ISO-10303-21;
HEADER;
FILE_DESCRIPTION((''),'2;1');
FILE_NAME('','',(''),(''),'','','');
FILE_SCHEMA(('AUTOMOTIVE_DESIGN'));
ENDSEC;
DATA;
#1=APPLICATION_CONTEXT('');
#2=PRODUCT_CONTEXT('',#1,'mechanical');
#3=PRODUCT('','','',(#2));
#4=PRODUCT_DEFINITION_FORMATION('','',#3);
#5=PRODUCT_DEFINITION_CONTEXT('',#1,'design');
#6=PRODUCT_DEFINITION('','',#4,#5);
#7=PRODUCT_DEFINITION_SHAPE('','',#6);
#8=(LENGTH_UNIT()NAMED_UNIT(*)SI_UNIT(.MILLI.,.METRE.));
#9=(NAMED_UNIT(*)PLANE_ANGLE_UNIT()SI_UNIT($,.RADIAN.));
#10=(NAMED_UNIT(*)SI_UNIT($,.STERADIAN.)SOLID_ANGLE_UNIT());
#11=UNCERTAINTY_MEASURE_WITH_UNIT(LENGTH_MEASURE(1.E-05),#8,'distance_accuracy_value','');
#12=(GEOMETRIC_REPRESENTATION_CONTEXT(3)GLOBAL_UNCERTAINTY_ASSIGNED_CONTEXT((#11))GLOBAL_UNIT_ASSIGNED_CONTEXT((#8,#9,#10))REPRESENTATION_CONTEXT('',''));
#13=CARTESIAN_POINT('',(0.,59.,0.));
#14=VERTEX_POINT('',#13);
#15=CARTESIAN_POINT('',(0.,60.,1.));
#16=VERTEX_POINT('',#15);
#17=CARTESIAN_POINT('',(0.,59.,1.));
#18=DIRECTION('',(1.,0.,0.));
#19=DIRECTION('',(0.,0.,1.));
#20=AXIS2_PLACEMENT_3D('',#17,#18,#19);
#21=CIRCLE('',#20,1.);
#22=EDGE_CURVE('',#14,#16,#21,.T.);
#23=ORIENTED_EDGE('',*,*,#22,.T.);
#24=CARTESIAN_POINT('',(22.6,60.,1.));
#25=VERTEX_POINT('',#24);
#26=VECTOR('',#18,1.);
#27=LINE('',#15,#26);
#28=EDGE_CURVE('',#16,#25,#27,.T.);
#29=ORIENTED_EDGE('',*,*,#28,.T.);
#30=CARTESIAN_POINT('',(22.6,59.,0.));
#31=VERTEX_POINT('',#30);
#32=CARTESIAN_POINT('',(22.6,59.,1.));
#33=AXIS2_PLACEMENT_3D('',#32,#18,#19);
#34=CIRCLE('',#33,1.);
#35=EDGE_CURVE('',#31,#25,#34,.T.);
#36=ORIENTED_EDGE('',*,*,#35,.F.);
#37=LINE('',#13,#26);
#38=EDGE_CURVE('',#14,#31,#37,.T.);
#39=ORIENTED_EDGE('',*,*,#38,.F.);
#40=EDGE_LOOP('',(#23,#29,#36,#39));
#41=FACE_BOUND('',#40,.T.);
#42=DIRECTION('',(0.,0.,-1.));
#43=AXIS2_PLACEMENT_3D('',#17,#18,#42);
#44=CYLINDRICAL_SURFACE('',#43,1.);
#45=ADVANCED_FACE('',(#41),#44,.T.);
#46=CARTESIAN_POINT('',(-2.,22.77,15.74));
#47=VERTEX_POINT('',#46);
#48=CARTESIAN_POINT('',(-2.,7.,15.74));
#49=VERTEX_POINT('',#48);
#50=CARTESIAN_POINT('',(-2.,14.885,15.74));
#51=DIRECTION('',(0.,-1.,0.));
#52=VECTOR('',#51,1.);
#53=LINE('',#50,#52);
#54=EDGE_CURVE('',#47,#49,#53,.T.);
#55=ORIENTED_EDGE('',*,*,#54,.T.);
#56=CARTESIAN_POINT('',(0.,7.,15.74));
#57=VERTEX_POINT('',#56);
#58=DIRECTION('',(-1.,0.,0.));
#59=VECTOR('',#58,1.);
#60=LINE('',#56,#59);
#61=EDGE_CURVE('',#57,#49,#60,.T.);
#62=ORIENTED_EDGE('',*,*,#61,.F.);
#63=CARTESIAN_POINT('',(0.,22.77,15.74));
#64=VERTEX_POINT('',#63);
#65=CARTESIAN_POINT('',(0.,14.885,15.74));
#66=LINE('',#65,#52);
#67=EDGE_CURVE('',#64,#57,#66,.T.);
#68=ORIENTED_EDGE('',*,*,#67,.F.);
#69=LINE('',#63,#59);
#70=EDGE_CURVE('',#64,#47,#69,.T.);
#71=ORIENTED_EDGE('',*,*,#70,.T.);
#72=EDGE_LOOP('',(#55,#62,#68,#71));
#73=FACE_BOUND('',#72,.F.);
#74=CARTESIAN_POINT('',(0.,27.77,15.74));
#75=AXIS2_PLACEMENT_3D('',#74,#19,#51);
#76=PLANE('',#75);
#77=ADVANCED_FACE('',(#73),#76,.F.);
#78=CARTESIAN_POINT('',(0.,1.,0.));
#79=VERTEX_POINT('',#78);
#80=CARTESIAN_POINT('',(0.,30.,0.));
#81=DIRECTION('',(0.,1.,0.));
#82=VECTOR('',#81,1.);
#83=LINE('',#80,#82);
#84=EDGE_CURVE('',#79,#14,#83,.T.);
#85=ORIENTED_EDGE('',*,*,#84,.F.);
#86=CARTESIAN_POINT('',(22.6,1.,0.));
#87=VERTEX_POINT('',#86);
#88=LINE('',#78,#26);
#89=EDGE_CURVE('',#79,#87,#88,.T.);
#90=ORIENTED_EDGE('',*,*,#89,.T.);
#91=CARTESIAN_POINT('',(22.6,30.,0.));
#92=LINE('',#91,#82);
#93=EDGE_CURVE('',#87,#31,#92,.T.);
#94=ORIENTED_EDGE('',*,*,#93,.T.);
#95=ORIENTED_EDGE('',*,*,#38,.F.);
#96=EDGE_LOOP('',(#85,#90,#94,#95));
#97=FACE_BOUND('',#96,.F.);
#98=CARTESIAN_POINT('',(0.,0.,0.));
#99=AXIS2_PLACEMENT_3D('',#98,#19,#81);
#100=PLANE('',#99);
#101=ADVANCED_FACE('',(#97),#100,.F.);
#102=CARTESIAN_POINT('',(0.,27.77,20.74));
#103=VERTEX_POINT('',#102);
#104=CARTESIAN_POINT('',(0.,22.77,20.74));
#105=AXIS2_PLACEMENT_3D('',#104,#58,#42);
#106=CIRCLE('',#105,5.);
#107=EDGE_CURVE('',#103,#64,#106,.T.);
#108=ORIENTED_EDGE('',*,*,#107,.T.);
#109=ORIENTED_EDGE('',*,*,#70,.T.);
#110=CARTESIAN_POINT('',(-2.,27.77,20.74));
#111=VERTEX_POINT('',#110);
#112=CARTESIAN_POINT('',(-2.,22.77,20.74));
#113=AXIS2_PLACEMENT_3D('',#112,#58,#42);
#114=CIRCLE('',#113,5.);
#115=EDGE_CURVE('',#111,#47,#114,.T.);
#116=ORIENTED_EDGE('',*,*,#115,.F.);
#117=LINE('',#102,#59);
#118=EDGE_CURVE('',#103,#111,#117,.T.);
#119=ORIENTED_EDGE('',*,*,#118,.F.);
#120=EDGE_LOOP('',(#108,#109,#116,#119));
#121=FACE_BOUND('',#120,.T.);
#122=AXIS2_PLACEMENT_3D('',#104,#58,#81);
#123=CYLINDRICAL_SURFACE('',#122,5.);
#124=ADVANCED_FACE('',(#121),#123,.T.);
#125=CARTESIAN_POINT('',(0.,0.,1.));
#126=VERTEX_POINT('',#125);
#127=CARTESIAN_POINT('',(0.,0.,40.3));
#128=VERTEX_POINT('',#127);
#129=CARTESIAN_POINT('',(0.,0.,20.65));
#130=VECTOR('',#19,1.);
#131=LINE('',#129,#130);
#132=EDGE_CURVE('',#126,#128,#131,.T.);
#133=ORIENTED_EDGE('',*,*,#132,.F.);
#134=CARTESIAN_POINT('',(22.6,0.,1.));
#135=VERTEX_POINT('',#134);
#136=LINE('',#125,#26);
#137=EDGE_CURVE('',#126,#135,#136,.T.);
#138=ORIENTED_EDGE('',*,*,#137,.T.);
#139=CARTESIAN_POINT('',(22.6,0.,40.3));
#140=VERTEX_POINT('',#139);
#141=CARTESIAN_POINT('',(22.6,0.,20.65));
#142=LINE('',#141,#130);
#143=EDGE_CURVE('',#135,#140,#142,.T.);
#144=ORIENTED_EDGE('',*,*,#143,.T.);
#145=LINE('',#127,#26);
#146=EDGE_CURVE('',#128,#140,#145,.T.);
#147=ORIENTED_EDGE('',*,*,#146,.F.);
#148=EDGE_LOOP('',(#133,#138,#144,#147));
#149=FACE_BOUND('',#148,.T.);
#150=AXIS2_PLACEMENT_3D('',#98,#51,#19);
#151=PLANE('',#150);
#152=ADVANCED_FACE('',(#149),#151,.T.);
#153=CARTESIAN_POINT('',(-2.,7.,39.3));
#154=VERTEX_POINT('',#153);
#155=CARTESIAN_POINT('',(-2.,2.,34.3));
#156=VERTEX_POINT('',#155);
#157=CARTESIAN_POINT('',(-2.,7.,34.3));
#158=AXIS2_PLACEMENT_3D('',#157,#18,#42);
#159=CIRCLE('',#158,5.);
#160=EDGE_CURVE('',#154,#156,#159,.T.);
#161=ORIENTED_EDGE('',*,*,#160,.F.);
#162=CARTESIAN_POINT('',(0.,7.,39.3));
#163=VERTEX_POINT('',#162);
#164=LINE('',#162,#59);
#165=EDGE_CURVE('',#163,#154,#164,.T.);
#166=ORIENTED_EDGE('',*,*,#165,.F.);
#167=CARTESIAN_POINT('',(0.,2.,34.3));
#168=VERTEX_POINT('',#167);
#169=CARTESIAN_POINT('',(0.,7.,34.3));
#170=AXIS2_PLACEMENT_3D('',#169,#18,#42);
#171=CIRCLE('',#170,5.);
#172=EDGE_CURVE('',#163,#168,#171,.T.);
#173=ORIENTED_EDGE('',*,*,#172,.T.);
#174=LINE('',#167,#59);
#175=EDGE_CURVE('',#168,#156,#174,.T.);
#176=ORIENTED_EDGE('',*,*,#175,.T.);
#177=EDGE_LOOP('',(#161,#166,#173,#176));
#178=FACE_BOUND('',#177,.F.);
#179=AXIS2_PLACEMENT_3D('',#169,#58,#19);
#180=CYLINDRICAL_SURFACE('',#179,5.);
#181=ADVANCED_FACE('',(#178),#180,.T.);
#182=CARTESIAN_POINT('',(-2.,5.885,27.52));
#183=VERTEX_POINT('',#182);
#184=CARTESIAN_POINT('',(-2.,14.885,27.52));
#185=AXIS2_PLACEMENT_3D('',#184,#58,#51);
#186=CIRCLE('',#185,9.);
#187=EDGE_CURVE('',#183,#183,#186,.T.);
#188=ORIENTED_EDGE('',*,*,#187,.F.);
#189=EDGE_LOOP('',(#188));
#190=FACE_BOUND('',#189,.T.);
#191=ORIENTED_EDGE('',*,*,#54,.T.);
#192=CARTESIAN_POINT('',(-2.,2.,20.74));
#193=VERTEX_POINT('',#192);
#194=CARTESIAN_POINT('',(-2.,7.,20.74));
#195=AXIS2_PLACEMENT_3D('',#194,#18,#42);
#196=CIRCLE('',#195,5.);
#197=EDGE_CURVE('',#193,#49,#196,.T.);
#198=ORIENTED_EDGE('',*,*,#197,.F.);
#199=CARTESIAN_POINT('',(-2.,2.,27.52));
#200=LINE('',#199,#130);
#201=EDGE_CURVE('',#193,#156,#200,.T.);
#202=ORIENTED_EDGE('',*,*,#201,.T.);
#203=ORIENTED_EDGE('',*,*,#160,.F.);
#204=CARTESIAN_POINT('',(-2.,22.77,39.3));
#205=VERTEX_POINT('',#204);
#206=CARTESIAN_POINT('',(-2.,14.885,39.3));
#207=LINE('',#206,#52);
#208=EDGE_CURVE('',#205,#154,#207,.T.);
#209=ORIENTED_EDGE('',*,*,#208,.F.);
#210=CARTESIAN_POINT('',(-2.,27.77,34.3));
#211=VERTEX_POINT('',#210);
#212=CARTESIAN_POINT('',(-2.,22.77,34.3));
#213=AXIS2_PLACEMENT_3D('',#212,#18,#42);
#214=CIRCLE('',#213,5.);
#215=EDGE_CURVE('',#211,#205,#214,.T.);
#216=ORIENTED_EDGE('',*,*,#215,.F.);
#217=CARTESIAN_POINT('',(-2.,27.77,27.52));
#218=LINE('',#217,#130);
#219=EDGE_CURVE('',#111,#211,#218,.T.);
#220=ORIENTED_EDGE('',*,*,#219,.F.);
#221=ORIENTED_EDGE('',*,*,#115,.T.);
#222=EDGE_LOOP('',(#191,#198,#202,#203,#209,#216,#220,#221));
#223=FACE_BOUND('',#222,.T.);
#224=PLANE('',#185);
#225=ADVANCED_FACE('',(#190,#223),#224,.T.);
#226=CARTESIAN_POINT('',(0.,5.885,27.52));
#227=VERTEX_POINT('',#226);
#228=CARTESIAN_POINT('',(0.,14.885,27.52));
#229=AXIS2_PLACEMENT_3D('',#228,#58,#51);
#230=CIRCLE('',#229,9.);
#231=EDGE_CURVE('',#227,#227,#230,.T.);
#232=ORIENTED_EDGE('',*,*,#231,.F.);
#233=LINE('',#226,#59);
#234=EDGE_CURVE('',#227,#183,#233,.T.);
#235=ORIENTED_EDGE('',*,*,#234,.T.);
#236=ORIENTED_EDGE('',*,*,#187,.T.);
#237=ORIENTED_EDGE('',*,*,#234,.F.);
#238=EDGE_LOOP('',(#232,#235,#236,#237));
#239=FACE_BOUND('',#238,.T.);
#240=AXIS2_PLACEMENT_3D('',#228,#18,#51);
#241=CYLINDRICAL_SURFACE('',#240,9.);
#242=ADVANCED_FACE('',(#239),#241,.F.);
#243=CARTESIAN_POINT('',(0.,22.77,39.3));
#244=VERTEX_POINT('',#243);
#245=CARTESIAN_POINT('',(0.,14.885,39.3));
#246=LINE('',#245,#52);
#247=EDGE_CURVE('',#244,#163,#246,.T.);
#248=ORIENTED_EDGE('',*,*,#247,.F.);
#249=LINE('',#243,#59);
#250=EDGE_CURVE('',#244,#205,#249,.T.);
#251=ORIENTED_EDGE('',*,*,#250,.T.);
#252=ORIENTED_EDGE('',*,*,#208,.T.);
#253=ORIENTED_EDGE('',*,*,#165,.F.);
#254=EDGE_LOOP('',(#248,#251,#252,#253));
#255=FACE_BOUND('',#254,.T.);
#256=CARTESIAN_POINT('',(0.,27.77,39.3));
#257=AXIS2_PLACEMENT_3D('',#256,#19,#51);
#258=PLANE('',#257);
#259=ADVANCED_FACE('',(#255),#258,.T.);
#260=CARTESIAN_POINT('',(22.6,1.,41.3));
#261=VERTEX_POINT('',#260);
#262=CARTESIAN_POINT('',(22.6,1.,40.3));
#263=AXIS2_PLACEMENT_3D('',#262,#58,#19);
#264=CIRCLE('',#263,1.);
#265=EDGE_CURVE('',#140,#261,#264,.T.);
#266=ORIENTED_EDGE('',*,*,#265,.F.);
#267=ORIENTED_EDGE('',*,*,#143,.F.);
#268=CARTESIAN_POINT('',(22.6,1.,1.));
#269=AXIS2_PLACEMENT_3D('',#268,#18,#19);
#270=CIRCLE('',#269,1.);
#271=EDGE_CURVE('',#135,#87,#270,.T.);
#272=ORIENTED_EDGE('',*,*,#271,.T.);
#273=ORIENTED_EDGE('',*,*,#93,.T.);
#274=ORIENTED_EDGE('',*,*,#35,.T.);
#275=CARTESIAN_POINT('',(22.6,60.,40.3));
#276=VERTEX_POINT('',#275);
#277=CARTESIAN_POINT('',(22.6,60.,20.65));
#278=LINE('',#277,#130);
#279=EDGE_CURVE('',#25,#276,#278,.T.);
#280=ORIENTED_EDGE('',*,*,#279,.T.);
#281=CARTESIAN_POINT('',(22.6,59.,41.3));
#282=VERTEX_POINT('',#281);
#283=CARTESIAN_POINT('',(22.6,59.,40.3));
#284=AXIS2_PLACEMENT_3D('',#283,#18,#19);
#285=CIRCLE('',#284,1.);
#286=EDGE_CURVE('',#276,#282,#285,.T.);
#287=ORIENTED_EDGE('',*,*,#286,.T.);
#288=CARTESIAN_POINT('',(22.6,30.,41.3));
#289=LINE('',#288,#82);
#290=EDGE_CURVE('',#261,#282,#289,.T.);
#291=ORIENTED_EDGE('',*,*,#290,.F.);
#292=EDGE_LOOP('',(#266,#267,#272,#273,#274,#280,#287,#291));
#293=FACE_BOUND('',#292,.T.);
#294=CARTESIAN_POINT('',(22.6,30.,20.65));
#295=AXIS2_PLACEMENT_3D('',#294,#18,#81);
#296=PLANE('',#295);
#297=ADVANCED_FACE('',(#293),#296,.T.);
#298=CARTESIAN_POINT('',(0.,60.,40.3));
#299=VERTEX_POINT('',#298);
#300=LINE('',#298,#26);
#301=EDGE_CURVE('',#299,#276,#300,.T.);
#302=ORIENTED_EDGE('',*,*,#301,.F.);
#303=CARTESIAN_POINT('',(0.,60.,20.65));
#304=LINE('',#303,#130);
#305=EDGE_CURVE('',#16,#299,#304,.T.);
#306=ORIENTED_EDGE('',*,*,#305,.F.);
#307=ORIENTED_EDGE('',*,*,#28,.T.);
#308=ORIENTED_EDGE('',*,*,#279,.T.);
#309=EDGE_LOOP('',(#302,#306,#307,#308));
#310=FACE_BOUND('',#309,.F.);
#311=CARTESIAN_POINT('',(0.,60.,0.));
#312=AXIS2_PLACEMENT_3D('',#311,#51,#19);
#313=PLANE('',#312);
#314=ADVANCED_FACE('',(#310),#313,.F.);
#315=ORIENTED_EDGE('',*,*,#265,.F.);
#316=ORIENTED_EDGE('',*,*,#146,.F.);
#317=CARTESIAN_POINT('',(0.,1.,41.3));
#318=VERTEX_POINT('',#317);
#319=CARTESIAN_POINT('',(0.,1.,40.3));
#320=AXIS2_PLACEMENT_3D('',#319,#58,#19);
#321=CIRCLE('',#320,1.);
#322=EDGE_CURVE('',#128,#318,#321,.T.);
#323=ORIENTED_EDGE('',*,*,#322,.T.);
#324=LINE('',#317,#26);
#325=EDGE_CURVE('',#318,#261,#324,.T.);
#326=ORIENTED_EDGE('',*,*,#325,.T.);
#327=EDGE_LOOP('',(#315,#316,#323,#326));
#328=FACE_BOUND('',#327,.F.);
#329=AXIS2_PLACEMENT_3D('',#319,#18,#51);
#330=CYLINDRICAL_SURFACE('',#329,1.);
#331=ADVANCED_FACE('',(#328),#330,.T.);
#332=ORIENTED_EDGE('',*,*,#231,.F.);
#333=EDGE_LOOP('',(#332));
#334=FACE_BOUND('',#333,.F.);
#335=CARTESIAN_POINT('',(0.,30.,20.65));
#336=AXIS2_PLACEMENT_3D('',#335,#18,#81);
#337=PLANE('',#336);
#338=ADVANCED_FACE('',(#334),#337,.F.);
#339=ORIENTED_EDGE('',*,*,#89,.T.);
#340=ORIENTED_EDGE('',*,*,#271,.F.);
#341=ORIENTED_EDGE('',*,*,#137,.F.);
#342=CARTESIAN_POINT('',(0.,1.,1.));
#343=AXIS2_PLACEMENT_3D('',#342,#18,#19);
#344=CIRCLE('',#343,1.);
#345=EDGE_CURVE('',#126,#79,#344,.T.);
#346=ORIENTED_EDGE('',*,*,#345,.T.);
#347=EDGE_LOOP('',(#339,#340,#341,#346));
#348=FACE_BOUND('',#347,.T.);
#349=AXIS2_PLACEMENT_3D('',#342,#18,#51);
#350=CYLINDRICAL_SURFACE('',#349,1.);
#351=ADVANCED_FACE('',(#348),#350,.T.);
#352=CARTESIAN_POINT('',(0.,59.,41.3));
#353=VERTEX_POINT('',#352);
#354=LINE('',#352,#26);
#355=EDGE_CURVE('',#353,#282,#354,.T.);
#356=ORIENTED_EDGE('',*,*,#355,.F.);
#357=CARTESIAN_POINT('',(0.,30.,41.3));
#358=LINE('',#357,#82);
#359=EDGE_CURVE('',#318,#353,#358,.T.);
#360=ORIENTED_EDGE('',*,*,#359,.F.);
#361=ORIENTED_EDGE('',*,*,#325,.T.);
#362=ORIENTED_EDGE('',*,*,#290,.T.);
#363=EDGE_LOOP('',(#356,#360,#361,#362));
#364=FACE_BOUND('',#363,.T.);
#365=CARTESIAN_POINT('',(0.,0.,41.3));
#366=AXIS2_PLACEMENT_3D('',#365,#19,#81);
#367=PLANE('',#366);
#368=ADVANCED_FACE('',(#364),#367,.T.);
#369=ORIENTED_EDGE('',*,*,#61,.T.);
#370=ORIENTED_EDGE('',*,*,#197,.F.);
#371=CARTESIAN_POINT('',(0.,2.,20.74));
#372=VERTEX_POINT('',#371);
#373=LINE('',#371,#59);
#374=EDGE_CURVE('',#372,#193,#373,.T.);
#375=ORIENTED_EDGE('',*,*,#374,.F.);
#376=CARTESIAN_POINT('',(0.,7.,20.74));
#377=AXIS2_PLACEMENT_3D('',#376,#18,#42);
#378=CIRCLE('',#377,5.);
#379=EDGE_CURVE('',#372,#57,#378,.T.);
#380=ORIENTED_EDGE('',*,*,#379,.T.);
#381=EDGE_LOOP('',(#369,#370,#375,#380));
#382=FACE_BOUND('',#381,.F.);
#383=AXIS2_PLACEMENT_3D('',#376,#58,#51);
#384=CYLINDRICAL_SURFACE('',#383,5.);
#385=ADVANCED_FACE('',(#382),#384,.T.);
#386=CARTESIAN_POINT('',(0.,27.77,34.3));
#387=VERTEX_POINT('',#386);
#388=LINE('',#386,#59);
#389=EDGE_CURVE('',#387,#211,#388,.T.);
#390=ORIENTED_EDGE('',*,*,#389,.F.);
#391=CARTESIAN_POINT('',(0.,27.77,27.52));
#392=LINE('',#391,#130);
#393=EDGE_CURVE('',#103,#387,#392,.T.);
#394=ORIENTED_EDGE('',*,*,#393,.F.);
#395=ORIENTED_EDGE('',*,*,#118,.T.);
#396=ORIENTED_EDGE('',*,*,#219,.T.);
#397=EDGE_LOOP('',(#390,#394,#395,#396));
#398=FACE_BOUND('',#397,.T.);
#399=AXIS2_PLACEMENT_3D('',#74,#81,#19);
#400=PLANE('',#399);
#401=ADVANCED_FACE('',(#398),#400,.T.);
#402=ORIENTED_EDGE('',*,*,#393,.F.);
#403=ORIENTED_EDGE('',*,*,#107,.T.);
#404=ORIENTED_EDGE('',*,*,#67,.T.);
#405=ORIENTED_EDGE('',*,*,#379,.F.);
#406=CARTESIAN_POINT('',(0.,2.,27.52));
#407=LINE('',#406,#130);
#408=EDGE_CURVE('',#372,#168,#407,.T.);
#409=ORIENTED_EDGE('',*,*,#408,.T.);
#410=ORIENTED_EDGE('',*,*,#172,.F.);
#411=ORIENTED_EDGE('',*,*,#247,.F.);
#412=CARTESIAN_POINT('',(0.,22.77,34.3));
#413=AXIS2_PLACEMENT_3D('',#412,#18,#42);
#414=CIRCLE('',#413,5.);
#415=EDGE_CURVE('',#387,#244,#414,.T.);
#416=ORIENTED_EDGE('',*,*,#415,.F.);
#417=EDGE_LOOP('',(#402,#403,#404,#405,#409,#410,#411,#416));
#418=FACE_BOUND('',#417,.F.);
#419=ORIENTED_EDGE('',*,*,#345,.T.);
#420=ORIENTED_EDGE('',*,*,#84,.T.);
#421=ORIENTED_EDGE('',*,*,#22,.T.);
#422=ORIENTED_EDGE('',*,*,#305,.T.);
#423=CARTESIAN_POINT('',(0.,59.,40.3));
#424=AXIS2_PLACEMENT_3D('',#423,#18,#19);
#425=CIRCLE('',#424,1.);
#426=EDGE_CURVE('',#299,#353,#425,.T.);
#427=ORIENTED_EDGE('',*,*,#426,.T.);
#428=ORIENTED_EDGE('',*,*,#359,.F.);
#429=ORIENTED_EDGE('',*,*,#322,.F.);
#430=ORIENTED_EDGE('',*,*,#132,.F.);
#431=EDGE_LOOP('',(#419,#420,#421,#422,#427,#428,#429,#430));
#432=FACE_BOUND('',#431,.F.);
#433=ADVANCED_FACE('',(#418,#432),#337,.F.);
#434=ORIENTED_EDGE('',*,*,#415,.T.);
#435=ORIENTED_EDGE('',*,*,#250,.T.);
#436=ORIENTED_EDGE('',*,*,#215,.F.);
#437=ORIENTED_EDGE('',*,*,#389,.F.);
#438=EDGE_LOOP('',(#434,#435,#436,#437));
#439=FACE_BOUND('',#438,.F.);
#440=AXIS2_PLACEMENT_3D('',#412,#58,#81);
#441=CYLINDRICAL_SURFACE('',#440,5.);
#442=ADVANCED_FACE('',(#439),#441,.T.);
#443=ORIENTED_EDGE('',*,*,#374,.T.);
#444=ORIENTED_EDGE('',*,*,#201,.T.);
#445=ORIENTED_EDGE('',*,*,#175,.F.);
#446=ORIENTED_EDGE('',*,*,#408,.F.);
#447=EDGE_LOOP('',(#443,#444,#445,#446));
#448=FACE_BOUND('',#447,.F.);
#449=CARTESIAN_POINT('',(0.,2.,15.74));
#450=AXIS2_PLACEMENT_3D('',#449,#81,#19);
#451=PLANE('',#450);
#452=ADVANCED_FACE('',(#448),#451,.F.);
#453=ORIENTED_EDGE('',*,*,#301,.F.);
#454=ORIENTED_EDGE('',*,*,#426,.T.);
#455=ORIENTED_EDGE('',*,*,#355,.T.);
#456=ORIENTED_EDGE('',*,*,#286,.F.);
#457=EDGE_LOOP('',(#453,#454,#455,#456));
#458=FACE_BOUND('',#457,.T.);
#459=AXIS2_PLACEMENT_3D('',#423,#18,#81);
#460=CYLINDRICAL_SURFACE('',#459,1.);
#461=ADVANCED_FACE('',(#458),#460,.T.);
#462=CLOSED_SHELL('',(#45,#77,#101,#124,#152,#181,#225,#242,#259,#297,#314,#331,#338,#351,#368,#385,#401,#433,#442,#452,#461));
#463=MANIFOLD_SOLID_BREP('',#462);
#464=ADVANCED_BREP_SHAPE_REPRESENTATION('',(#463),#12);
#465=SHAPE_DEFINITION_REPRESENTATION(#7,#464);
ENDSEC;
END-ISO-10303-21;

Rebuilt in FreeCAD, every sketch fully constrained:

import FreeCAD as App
import Part
import Sketcher
Q = App.Units.Quantity


def edges_at(feature, points):
    """Names of the edges that pass closest to the given points."""
    edges = feature.Shape.Edges
    near = lambda p: min(range(len(edges)), key=lambda i: edges[i].distToShape(Part.Vertex(*p))[0])
    return sorted({f"Edge{near(p) + 1}" for p in points})


def add_polygon(sketch, points):
    """Adds a closed chain of lines whose ends are joined by coincident constraints."""
    first, n = sketch.GeometryCount, len(points)
    for a, b in zip(points, points[1:] + points[:1]):
        sketch.addGeometry(Part.LineSegment(App.Vector(*a, 0), App.Vector(*b, 0)), False)
    for i in range(n):
        sketch.addConstraint(Sketcher.Constraint("Coincident", first + i, 2, first + (i + 1) % n, 1))

doc = App.newDocument("Part")
body = doc.addObject("PartDesign::Body", "Body")

sketch1 = body.newObject("Sketcher::SketchObject", "Sketch")
sketch1.AttachmentSupport = (doc.getObject("YZ_Plane"), [""])
sketch1.MapMode = "FlatFace"
add_polygon(sketch1, [(0, 41.3), (0, 0), (60, 0), (60, 41.3)])
sketch1.addConstraint(Sketcher.Constraint("Vertical", 0))
sketch1.addConstraint(Sketcher.Constraint("Horizontal", 1))
sketch1.addConstraint(Sketcher.Constraint("Vertical", 2))
sketch1.addConstraint(Sketcher.Constraint("Horizontal", 3))
sketch1.addConstraint(Sketcher.Constraint("Coincident", 0, 2, -1, 1))
sketch1.addConstraint(Sketcher.Constraint("DistanceX", 1, 1, 1, 2, Q("60 mm")))
sketch1.addConstraint(Sketcher.Constraint("DistanceY", 0, 2, 0, 1, Q("41.3 mm")))
pad1 = body.newObject("PartDesign::Pad", "Pad")
pad1.Profile = sketch1
pad1.Length = 22.6
doc.recompute()

fillet = body.newObject("PartDesign::Fillet", "Fillet")
fillet.Base = (pad1, edges_at(pad1, [
    (11.3, 60, 41.3),
    (11.3, 0, 41.3),
    (11.3, 0, 0),
    (11.3, 60, 0),
]))
fillet.Radius = 1

sketch2 = body.newObject("Sketcher::SketchObject", "Sketch001")
sketch2.AttachmentSupport = (doc.getObject("YZ_Plane"), [""])
sketch2.MapMode = "FlatFace"
add_polygon(sketch2, [(27.77, 39.3), (27.77, 15.74), (2, 15.74), (2, 39.3)])
sketch2.addGeometry(Part.Circle(App.Vector(14.885, 27.52, 0), App.Vector(0, 0, 1), 9), False)
sketch2.addConstraint(Sketcher.Constraint("Vertical", 0))
sketch2.addConstraint(Sketcher.Constraint("Horizontal", 1))
sketch2.addConstraint(Sketcher.Constraint("Vertical", 2))
sketch2.addConstraint(Sketcher.Constraint("Horizontal", 3))
sketch2.addConstraint(Sketcher.Constraint("Diameter", 4, Q("18 mm")))
sketch2.addConstraint(Sketcher.Constraint("DistanceX", -1, 1, 1, 2, Q("2 mm")))
sketch2.addConstraint(Sketcher.Constraint("DistanceX", 1, 2, 1, 1, Q("25.77 mm")))
sketch2.addConstraint(Sketcher.Constraint("DistanceY", 0, 2, 0, 1, Q("23.56 mm")))
sketch2.addConstraint(Sketcher.Constraint("DistanceY", -1, 1, 2, 2, Q("39.3 mm")))
sketch2.addConstraint(Sketcher.Constraint("DistanceY", -1, 1, 4, 3, Q("27.52 mm")))
sketch2.addConstraint(Sketcher.Constraint("DistanceX", -1, 1, 4, 3, Q("14.885 mm")))
pad2 = body.newObject("PartDesign::Pad", "Pad001")
pad2.Profile = sketch2
pad2.Length = 2
pad2.Reversed = True
doc.recompute()

fillet2 = body.newObject("PartDesign::Fillet", "Fillet001")
fillet2.Base = (pad2, edges_at(pad2, [
    (-1, 2, 39.3),
    (-1, 2, 15.74),
    (-1, 27.77, 15.74),
    (-1, 27.77, 39.3),
]))
fillet2.Radius = 5

doc.recompute()
